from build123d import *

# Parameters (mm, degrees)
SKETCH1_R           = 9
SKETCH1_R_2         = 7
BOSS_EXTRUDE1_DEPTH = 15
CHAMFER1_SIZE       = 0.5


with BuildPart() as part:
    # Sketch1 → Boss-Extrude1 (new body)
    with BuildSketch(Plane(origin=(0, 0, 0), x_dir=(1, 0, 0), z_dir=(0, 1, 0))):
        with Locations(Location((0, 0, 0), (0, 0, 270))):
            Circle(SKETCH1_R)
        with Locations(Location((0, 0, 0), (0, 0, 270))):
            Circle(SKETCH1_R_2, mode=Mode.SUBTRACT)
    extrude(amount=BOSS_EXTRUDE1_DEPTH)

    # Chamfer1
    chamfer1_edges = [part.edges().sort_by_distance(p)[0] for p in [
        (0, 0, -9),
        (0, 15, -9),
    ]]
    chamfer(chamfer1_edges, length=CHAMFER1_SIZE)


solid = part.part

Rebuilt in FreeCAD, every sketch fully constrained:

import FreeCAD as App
import Part
import Sketcher
from FreeCAD import Vector
Q = App.Units.Quantity


def edges_at(feature, points):
    """Names of the edges that pass closest to the given points."""
    edges = feature.Shape.Edges
    near = lambda p: min(range(len(edges)), key=lambda i: edges[i].distToShape(Part.Vertex(*p))[0])
    return sorted({f"Edge{near(p) + 1}" for p in points})

doc = App.newDocument("Part")
body = doc.addObject("PartDesign::Body", "Body")

sketch1 = body.newObject("Sketcher::SketchObject", "Sketch")
sketch1.AttachmentSupport = (doc.getObject("XZ_Plane"), [""])
sketch1.MapMode = "FlatFace"
sketch1.addGeometry([
    Part.Circle(Vector(0, 0, 0), Vector(0, 0, 1), 9),
    Part.Circle(Vector(0, 0, 0), Vector(0, 0, 1), 7),
], False)
sketch1.addConstraint([
    Sketcher.Constraint("Coincident", 0, 3, -1, 1),
    Sketcher.Constraint("Coincident", 1, 3, -1, 1),
    Sketcher.Constraint("Diameter", 0, Q("18 mm")),
    Sketcher.Constraint("Diameter", 1, Q("14 mm")),
])
pad1 = body.newObject("PartDesign::Pad", "Pad")
pad1.Profile = sketch1
pad1.Length = 15
pad1.Reversed = True
doc.recompute()

chamfer = body.newObject("PartDesign::Chamfer", "Chamfer")
chamfer.Base = (pad1, edges_at(pad1, [(0, 0, -9), (0, 15, -9)]))
chamfer.Size = 0.5

doc.recompute()
